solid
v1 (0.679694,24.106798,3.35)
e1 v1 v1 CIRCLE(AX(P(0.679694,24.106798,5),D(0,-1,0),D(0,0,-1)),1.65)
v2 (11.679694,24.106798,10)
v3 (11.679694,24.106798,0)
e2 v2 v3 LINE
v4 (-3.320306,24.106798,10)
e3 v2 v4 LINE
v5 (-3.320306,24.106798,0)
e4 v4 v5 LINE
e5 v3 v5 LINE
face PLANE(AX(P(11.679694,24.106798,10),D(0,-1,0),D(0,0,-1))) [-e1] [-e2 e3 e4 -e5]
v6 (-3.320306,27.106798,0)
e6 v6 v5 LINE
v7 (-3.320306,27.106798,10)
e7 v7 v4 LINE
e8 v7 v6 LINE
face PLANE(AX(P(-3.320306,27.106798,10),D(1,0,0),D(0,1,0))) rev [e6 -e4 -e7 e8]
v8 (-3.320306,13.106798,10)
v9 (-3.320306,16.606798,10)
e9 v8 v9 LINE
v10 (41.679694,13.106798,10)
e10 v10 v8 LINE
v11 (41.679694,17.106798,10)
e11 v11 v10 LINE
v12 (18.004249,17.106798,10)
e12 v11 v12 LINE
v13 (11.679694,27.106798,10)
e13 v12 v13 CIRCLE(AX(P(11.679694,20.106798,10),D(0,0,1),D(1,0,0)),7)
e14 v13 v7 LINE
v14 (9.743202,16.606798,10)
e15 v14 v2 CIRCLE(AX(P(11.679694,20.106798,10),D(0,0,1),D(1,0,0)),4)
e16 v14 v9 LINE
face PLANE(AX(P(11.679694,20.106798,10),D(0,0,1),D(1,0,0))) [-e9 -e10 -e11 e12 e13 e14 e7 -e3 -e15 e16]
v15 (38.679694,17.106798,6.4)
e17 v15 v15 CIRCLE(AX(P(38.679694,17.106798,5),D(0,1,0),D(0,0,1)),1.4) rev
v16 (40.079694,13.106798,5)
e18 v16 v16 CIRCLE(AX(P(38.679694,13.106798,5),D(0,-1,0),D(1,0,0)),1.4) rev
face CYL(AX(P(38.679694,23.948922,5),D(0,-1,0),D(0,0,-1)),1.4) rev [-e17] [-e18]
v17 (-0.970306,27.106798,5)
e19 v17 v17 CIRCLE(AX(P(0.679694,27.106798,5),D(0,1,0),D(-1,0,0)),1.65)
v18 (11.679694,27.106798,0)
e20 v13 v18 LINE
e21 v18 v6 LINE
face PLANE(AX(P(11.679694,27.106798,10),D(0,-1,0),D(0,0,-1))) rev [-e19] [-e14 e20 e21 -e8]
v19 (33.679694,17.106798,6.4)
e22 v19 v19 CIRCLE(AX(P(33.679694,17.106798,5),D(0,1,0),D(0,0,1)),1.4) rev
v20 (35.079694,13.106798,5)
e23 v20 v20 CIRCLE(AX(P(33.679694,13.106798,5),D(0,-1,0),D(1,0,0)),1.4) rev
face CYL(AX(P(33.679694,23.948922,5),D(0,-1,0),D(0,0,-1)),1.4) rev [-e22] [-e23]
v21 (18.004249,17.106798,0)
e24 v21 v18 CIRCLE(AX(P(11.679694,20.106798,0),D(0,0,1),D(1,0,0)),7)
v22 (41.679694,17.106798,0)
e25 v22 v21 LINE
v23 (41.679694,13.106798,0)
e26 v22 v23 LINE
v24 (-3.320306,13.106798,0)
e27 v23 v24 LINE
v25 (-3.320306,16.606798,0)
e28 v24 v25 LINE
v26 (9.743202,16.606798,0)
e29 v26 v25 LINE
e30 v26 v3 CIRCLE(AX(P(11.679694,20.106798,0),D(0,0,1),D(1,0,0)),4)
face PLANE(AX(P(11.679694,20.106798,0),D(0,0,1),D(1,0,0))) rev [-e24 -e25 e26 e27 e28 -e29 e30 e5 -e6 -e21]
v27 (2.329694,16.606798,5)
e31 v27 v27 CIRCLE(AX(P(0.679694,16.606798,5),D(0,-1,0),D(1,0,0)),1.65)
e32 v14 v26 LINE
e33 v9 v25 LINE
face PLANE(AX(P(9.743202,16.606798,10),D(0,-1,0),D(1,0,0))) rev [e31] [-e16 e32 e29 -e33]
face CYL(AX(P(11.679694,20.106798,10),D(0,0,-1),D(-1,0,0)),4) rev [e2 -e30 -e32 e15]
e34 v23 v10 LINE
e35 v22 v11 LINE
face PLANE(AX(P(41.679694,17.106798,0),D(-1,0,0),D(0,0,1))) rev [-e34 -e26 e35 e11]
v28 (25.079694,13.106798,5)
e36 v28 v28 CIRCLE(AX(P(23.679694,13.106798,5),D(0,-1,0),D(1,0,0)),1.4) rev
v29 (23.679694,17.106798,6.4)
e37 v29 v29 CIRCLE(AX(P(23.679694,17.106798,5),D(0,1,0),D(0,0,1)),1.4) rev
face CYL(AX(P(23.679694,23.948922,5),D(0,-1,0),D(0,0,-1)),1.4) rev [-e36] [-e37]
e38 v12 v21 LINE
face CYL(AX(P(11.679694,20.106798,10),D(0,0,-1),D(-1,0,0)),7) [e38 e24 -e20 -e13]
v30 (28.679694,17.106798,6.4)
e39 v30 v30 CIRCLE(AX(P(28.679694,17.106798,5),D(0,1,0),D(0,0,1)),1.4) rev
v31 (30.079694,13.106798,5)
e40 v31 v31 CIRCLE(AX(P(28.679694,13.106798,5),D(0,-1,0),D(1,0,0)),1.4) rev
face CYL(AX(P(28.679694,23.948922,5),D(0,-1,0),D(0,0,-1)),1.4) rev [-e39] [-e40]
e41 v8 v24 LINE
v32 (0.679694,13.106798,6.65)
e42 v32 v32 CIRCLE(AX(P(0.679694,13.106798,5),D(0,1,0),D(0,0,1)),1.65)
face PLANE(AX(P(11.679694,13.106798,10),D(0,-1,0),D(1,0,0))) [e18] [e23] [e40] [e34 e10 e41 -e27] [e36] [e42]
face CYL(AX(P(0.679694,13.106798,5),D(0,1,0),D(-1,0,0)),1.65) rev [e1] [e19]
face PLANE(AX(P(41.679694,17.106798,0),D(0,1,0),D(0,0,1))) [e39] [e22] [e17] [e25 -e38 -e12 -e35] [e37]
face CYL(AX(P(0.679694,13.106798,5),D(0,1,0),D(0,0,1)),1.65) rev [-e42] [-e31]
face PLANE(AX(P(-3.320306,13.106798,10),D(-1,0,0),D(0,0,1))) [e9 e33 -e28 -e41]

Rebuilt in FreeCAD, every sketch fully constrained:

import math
import FreeCAD as App
import Part
import Sketcher

doc = App.newDocument("Part")
body = doc.addObject("PartDesign::Body", "Body")

sketch1 = body.newObject("Sketcher::SketchObject", "Sketch")
sketch1.AttachmentSupport = (doc.getObject("XY_Plane"), [""])
sketch1.MapMode = "FlatFace"
sketch1.addGeometry(Part.LineSegment(App.Vector(-3.3, 24.1, 0), App.Vector(11.7, 24.1, 0)), False)
sketch1.addGeometry(Part.ArcOfCircle(Part.Circle(App.Vector(11.7, 20.1, 0), App.Vector(0, 0, 1), 4), math.radians(-119), math.radians(90)), False)
sketch1.addGeometry(Part.LineSegment(App.Vector(9.7, 16.6, 0), App.Vector(-3.3, 16.6, 0)), False)
sketch1.addGeometry(Part.LineSegment(App.Vector(-3.3, 16.6, 0), App.Vector(-3.3, 13.1, 0)), False)
sketch1.addGeometry(Part.LineSegment(App.Vector(-3.3, 13.1, 0), App.Vector(11.7, 13.1, 0)), False)
sketch1.addGeometry(Part.ArcOfCircle(Part.Circle(App.Vector(11.7, 20.1, 0), App.Vector(0, 0, 1), 7), math.radians(-90), math.radians(90)), False)
sketch1.addGeometry(Part.LineSegment(App.Vector(11.7, 27.1, 0), App.Vector(-3.3, 27.1, 0)), False)
sketch1.addGeometry(Part.LineSegment(App.Vector(-3.3, 27.1, 0), App.Vector(-3.3, 24.1, 0)), False)
sketch1.addConstraint(Sketcher.Constraint("Tangent", 0, 2, 1, 2))
sketch1.addConstraint(Sketcher.Constraint("Coincident", 1, 1, 2, 1))
sketch1.addConstraint(Sketcher.Constraint("Coincident", 2, 2, 3, 1))
sketch1.addConstraint(Sketcher.Constraint("Coincident", 3, 2, 4, 1))
sketch1.addConstraint(Sketcher.Constraint("Tangent", 4, 2, 5, 1))
sketch1.addConstraint(Sketcher.Constraint("Tangent", 5, 2, 6, 1))
sketch1.addConstraint(Sketcher.Constraint("Coincident", 6, 2, 7, 1))
sketch1.addConstraint(Sketcher.Constraint("Coincident", 7, 2, 0, 1))
sketch1.addConstraint(Sketcher.Constraint("Horizontal", 0))
sketch1.addConstraint(Sketcher.Constraint("Horizontal", 2))
sketch1.addConstraint(Sketcher.Constraint("Vertical", 3))
sketch1.addConstraint(Sketcher.Constraint("Horizontal", 4))
sketch1.addConstraint(Sketcher.Constraint("Horizontal", 6))
sketch1.addConstraint(Sketcher.Constraint("Vertical", 7))
sketch1.addConstraint(Sketcher.Constraint("Coincident", 5, 3, 1, 3))
sketch1.addConstraint(Sketcher.Constraint("Vertical", 3, 2, 6, 2))
sketch1.addConstraint(Sketcher.Constraint("Radius", 1, 4.0))
sketch1.addConstraint(Sketcher.Constraint("Radius", 5, 7.0))
sketch1.addConstraint(Sketcher.Constraint("DistanceX", 0, 1, 0, 2, 15.0))
sketch1.addConstraint(Sketcher.Constraint("DistanceY", 3, 2, 3, 1, 3.5))
sketch1.addConstraint(Sketcher.Constraint("DistanceY", -1, 1, 1, 3, 20.106798))
sketch1.addConstraint(Sketcher.Constraint("DistanceX", -1, 1, 1, 3, 11.679694))
pad1 = body.newObject("PartDesign::Pad", "Pad")
pad1.Profile = sketch1
pad1.Length = 10

sketch2 = body.newObject("Sketcher::SketchObject", "Sketch001")
sketch2.AttachmentSupport = (doc.getObject("XZ_Plane"), [""])
sketch2.MapMode = "FlatFace"
sketch2.AttachmentOffset = App.Placement(App.Vector(0, 0, -27.106798), App.Rotation())
sketch2.addGeometry(Part.Circle(App.Vector(0.7, 5, 0), App.Vector(0, 0, 1), 1.6), False)
sketch2.addConstraint(Sketcher.Constraint("Diameter", 0, 3.3))
sketch2.addConstraint(Sketcher.Constraint("DistanceY", -1, 1, 0, 3, 5.0))
sketch2.addConstraint(Sketcher.Constraint("DistanceX", -1, 1, 0, 3, 0.679694))
pocket1 = body.newObject("PartDesign::Pocket", "Pocket")
pocket1.Profile = sketch2
pocket1.Type = "ThroughAll"
pocket1.Reversed = True

sketch3 = body.newObject("Sketcher::SketchObject", "Sketch002")
sketch3.AttachmentSupport = (doc.getObject("XY_Plane"), [""])
sketch3.MapMode = "FlatFace"
sketch3.addGeometry(Part.LineSegment(App.Vector(41.7, 17.1, 0), App.Vector(14.3, 17.1, 0)), False)
sketch3.addGeometry(Part.ArcOfCircle(Part.Circle(App.Vector(11.7, 20.1, 0), App.Vector(0, 0, 1), 4), math.radians(-119), math.radians(-49)), False)
sketch3.addGeometry(Part.LineSegment(App.Vector(9.7, 16.6, 0), App.Vector(-3.3, 16.6, 0)), False)
sketch3.addGeometry(Part.LineSegment(App.Vector(-3.3, 16.6, 0), App.Vector(-3.3, 13.1, 0)), False)
sketch3.addGeometry(Part.LineSegment(App.Vector(-3.3, 13.1, 0), App.Vector(41.7, 13.1, 0)), False)
sketch3.addGeometry(Part.LineSegment(App.Vector(41.7, 13.1, 0), App.Vector(41.7, 17.1, 0)), False)
sketch3.addConstraint(Sketcher.Constraint("Coincident", 0, 2, 1, 2))
sketch3.addConstraint(Sketcher.Constraint("Coincident", 1, 1, 2, 1))
sketch3.addConstraint(Sketcher.Constraint("Coincident", 2, 2, 3, 1))
sketch3.addConstraint(Sketcher.Constraint("Coincident", 3, 2, 4, 1))
sketch3.addConstraint(Sketcher.Constraint("Coincident", 4, 2, 5, 1))
sketch3.addConstraint(Sketcher.Constraint("Coincident", 5, 2, 0, 1))
sketch3.addConstraint(Sketcher.Constraint("Horizontal", 0))
sketch3.addConstraint(Sketcher.Constraint("Horizontal", 2))
sketch3.addConstraint(Sketcher.Constraint("Vertical", 3))
sketch3.addConstraint(Sketcher.Constraint("Horizontal", 4))
sketch3.addConstraint(Sketcher.Constraint("Vertical", 5))
sketch3.addConstraint(Sketcher.Constraint("Radius", 1, 4.0))
sketch3.addConstraint(Sketcher.Constraint("DistanceX", 4, 1, 4, 2, 45.0))
sketch3.addConstraint(Sketcher.Constraint("DistanceY", 5, 1, 5, 2, 4.0))
sketch3.addConstraint(Sketcher.Constraint("DistanceY", 3, 2, 3, 1, 3.5))
sketch3.addConstraint(Sketcher.Constraint("DistanceY", 0, 2, 1, 3, 3.0))
sketch3.addConstraint(Sketcher.Constraint("DistanceX", 2, 2, 1, 3, 15.0))
sketch3.addConstraint(Sketcher.Constraint("DistanceY", -1, 1, 1, 3, 20.106798))
sketch3.addConstraint(Sketcher.Constraint("DistanceX", -1, 1, 1, 3, 11.679694))
pad2 = body.newObject("PartDesign::Pad", "Pad001")
pad2.Profile = sketch3
pad2.Length = 10

sketch4 = body.newObject("Sketcher::SketchObject", "Sketch003")
sketch4.AttachmentSupport = (doc.getObject("XZ_Plane"), [""])
sketch4.MapMode = "FlatFace"
sketch4.AttachmentOffset = App.Placement(App.Vector(0, 0, -13.948922), App.Rotation())
sketch4.addGeometry(Part.Circle(App.Vector(28.7, 5, 0), App.Vector(0, 0, 1), 1.4), False)
sketch4.addGeometry(Part.Circle(App.Vector(38.7, 5, 0), App.Vector(0, 0, 1), 1.4), False)
sketch4.addGeometry(Part.Circle(App.Vector(23.7, 5, 0), App.Vector(0, 0, 1), 1.4), False)
sketch4.addGeometry(Part.Circle(App.Vector(33.7, 5, 0), App.Vector(0, 0, 1), 1.4), False)
sketch4.addConstraint(Sketcher.Constraint("Equal", 0, 1))
sketch4.addConstraint(Sketcher.Constraint("Equal", 1, 2))
sketch4.addConstraint(Sketcher.Constraint("Equal", 2, 3))
sketch4.addConstraint(Sketcher.Constraint("Horizontal", 0, 3, 1, 3))
sketch4.addConstraint(Sketcher.Constraint("Horizontal", 1, 3, 2, 3))
sketch4.addConstraint(Sketcher.Constraint("Horizontal", 2, 3, 3, 3))
sketch4.addConstraint(Sketcher.Constraint("Diameter", 0, 2.8))
sketch4.addConstraint(Sketcher.Constraint("DistanceY", -1, 1, 0, 3, 5.0))
sketch4.addConstraint(Sketcher.Constraint("DistanceX", 0, 3, 1, 3, 10.0))
sketch4.addConstraint(Sketcher.Constraint("DistanceX", 2, 3, 0, 3, 5.0))
sketch4.addConstraint(Sketcher.Constraint("DistanceX", 0, 3, 3, 3, 5.0))
sketch4.addConstraint(Sketcher.Constraint("DistanceX", -1, 1, 0, 3, 28.679694))
pocket2 = body.newObject("PartDesign::Pocket", "Pocket001")
pocket2.Profile = sketch4
pocket2.Type = "ThroughAll"
pocket2.Midplane = True

sketch5 = body.newObject("Sketcher::SketchObject", "Sketch004")
sketch5.AttachmentSupport = (doc.getObject("XZ_Plane"), [""])
sketch5.MapMode = "FlatFace"
sketch5.AttachmentOffset = App.Placement(App.Vector(0, 0, -27.106798), App.Rotation())
sketch5.addGeometry(Part.Circle(App.Vector(0.7, 5, 0), App.Vector(0, 0, 1), 1.6), False)
sketch5.addConstraint(Sketcher.Constraint("Diameter", 0, 3.3))
sketch5.addConstraint(Sketcher.Constraint("DistanceY", -1, 1, 0, 3, 5.0))
sketch5.addConstraint(Sketcher.Constraint("DistanceX", -1, 1, 0, 3, 0.679694))
pocket3 = body.newObject("PartDesign::Pocket", "Pocket002")
pocket3.Profile = sketch5
pocket3.Type = "ThroughAll"
pocket3.Reversed = True

doc.recompute()
